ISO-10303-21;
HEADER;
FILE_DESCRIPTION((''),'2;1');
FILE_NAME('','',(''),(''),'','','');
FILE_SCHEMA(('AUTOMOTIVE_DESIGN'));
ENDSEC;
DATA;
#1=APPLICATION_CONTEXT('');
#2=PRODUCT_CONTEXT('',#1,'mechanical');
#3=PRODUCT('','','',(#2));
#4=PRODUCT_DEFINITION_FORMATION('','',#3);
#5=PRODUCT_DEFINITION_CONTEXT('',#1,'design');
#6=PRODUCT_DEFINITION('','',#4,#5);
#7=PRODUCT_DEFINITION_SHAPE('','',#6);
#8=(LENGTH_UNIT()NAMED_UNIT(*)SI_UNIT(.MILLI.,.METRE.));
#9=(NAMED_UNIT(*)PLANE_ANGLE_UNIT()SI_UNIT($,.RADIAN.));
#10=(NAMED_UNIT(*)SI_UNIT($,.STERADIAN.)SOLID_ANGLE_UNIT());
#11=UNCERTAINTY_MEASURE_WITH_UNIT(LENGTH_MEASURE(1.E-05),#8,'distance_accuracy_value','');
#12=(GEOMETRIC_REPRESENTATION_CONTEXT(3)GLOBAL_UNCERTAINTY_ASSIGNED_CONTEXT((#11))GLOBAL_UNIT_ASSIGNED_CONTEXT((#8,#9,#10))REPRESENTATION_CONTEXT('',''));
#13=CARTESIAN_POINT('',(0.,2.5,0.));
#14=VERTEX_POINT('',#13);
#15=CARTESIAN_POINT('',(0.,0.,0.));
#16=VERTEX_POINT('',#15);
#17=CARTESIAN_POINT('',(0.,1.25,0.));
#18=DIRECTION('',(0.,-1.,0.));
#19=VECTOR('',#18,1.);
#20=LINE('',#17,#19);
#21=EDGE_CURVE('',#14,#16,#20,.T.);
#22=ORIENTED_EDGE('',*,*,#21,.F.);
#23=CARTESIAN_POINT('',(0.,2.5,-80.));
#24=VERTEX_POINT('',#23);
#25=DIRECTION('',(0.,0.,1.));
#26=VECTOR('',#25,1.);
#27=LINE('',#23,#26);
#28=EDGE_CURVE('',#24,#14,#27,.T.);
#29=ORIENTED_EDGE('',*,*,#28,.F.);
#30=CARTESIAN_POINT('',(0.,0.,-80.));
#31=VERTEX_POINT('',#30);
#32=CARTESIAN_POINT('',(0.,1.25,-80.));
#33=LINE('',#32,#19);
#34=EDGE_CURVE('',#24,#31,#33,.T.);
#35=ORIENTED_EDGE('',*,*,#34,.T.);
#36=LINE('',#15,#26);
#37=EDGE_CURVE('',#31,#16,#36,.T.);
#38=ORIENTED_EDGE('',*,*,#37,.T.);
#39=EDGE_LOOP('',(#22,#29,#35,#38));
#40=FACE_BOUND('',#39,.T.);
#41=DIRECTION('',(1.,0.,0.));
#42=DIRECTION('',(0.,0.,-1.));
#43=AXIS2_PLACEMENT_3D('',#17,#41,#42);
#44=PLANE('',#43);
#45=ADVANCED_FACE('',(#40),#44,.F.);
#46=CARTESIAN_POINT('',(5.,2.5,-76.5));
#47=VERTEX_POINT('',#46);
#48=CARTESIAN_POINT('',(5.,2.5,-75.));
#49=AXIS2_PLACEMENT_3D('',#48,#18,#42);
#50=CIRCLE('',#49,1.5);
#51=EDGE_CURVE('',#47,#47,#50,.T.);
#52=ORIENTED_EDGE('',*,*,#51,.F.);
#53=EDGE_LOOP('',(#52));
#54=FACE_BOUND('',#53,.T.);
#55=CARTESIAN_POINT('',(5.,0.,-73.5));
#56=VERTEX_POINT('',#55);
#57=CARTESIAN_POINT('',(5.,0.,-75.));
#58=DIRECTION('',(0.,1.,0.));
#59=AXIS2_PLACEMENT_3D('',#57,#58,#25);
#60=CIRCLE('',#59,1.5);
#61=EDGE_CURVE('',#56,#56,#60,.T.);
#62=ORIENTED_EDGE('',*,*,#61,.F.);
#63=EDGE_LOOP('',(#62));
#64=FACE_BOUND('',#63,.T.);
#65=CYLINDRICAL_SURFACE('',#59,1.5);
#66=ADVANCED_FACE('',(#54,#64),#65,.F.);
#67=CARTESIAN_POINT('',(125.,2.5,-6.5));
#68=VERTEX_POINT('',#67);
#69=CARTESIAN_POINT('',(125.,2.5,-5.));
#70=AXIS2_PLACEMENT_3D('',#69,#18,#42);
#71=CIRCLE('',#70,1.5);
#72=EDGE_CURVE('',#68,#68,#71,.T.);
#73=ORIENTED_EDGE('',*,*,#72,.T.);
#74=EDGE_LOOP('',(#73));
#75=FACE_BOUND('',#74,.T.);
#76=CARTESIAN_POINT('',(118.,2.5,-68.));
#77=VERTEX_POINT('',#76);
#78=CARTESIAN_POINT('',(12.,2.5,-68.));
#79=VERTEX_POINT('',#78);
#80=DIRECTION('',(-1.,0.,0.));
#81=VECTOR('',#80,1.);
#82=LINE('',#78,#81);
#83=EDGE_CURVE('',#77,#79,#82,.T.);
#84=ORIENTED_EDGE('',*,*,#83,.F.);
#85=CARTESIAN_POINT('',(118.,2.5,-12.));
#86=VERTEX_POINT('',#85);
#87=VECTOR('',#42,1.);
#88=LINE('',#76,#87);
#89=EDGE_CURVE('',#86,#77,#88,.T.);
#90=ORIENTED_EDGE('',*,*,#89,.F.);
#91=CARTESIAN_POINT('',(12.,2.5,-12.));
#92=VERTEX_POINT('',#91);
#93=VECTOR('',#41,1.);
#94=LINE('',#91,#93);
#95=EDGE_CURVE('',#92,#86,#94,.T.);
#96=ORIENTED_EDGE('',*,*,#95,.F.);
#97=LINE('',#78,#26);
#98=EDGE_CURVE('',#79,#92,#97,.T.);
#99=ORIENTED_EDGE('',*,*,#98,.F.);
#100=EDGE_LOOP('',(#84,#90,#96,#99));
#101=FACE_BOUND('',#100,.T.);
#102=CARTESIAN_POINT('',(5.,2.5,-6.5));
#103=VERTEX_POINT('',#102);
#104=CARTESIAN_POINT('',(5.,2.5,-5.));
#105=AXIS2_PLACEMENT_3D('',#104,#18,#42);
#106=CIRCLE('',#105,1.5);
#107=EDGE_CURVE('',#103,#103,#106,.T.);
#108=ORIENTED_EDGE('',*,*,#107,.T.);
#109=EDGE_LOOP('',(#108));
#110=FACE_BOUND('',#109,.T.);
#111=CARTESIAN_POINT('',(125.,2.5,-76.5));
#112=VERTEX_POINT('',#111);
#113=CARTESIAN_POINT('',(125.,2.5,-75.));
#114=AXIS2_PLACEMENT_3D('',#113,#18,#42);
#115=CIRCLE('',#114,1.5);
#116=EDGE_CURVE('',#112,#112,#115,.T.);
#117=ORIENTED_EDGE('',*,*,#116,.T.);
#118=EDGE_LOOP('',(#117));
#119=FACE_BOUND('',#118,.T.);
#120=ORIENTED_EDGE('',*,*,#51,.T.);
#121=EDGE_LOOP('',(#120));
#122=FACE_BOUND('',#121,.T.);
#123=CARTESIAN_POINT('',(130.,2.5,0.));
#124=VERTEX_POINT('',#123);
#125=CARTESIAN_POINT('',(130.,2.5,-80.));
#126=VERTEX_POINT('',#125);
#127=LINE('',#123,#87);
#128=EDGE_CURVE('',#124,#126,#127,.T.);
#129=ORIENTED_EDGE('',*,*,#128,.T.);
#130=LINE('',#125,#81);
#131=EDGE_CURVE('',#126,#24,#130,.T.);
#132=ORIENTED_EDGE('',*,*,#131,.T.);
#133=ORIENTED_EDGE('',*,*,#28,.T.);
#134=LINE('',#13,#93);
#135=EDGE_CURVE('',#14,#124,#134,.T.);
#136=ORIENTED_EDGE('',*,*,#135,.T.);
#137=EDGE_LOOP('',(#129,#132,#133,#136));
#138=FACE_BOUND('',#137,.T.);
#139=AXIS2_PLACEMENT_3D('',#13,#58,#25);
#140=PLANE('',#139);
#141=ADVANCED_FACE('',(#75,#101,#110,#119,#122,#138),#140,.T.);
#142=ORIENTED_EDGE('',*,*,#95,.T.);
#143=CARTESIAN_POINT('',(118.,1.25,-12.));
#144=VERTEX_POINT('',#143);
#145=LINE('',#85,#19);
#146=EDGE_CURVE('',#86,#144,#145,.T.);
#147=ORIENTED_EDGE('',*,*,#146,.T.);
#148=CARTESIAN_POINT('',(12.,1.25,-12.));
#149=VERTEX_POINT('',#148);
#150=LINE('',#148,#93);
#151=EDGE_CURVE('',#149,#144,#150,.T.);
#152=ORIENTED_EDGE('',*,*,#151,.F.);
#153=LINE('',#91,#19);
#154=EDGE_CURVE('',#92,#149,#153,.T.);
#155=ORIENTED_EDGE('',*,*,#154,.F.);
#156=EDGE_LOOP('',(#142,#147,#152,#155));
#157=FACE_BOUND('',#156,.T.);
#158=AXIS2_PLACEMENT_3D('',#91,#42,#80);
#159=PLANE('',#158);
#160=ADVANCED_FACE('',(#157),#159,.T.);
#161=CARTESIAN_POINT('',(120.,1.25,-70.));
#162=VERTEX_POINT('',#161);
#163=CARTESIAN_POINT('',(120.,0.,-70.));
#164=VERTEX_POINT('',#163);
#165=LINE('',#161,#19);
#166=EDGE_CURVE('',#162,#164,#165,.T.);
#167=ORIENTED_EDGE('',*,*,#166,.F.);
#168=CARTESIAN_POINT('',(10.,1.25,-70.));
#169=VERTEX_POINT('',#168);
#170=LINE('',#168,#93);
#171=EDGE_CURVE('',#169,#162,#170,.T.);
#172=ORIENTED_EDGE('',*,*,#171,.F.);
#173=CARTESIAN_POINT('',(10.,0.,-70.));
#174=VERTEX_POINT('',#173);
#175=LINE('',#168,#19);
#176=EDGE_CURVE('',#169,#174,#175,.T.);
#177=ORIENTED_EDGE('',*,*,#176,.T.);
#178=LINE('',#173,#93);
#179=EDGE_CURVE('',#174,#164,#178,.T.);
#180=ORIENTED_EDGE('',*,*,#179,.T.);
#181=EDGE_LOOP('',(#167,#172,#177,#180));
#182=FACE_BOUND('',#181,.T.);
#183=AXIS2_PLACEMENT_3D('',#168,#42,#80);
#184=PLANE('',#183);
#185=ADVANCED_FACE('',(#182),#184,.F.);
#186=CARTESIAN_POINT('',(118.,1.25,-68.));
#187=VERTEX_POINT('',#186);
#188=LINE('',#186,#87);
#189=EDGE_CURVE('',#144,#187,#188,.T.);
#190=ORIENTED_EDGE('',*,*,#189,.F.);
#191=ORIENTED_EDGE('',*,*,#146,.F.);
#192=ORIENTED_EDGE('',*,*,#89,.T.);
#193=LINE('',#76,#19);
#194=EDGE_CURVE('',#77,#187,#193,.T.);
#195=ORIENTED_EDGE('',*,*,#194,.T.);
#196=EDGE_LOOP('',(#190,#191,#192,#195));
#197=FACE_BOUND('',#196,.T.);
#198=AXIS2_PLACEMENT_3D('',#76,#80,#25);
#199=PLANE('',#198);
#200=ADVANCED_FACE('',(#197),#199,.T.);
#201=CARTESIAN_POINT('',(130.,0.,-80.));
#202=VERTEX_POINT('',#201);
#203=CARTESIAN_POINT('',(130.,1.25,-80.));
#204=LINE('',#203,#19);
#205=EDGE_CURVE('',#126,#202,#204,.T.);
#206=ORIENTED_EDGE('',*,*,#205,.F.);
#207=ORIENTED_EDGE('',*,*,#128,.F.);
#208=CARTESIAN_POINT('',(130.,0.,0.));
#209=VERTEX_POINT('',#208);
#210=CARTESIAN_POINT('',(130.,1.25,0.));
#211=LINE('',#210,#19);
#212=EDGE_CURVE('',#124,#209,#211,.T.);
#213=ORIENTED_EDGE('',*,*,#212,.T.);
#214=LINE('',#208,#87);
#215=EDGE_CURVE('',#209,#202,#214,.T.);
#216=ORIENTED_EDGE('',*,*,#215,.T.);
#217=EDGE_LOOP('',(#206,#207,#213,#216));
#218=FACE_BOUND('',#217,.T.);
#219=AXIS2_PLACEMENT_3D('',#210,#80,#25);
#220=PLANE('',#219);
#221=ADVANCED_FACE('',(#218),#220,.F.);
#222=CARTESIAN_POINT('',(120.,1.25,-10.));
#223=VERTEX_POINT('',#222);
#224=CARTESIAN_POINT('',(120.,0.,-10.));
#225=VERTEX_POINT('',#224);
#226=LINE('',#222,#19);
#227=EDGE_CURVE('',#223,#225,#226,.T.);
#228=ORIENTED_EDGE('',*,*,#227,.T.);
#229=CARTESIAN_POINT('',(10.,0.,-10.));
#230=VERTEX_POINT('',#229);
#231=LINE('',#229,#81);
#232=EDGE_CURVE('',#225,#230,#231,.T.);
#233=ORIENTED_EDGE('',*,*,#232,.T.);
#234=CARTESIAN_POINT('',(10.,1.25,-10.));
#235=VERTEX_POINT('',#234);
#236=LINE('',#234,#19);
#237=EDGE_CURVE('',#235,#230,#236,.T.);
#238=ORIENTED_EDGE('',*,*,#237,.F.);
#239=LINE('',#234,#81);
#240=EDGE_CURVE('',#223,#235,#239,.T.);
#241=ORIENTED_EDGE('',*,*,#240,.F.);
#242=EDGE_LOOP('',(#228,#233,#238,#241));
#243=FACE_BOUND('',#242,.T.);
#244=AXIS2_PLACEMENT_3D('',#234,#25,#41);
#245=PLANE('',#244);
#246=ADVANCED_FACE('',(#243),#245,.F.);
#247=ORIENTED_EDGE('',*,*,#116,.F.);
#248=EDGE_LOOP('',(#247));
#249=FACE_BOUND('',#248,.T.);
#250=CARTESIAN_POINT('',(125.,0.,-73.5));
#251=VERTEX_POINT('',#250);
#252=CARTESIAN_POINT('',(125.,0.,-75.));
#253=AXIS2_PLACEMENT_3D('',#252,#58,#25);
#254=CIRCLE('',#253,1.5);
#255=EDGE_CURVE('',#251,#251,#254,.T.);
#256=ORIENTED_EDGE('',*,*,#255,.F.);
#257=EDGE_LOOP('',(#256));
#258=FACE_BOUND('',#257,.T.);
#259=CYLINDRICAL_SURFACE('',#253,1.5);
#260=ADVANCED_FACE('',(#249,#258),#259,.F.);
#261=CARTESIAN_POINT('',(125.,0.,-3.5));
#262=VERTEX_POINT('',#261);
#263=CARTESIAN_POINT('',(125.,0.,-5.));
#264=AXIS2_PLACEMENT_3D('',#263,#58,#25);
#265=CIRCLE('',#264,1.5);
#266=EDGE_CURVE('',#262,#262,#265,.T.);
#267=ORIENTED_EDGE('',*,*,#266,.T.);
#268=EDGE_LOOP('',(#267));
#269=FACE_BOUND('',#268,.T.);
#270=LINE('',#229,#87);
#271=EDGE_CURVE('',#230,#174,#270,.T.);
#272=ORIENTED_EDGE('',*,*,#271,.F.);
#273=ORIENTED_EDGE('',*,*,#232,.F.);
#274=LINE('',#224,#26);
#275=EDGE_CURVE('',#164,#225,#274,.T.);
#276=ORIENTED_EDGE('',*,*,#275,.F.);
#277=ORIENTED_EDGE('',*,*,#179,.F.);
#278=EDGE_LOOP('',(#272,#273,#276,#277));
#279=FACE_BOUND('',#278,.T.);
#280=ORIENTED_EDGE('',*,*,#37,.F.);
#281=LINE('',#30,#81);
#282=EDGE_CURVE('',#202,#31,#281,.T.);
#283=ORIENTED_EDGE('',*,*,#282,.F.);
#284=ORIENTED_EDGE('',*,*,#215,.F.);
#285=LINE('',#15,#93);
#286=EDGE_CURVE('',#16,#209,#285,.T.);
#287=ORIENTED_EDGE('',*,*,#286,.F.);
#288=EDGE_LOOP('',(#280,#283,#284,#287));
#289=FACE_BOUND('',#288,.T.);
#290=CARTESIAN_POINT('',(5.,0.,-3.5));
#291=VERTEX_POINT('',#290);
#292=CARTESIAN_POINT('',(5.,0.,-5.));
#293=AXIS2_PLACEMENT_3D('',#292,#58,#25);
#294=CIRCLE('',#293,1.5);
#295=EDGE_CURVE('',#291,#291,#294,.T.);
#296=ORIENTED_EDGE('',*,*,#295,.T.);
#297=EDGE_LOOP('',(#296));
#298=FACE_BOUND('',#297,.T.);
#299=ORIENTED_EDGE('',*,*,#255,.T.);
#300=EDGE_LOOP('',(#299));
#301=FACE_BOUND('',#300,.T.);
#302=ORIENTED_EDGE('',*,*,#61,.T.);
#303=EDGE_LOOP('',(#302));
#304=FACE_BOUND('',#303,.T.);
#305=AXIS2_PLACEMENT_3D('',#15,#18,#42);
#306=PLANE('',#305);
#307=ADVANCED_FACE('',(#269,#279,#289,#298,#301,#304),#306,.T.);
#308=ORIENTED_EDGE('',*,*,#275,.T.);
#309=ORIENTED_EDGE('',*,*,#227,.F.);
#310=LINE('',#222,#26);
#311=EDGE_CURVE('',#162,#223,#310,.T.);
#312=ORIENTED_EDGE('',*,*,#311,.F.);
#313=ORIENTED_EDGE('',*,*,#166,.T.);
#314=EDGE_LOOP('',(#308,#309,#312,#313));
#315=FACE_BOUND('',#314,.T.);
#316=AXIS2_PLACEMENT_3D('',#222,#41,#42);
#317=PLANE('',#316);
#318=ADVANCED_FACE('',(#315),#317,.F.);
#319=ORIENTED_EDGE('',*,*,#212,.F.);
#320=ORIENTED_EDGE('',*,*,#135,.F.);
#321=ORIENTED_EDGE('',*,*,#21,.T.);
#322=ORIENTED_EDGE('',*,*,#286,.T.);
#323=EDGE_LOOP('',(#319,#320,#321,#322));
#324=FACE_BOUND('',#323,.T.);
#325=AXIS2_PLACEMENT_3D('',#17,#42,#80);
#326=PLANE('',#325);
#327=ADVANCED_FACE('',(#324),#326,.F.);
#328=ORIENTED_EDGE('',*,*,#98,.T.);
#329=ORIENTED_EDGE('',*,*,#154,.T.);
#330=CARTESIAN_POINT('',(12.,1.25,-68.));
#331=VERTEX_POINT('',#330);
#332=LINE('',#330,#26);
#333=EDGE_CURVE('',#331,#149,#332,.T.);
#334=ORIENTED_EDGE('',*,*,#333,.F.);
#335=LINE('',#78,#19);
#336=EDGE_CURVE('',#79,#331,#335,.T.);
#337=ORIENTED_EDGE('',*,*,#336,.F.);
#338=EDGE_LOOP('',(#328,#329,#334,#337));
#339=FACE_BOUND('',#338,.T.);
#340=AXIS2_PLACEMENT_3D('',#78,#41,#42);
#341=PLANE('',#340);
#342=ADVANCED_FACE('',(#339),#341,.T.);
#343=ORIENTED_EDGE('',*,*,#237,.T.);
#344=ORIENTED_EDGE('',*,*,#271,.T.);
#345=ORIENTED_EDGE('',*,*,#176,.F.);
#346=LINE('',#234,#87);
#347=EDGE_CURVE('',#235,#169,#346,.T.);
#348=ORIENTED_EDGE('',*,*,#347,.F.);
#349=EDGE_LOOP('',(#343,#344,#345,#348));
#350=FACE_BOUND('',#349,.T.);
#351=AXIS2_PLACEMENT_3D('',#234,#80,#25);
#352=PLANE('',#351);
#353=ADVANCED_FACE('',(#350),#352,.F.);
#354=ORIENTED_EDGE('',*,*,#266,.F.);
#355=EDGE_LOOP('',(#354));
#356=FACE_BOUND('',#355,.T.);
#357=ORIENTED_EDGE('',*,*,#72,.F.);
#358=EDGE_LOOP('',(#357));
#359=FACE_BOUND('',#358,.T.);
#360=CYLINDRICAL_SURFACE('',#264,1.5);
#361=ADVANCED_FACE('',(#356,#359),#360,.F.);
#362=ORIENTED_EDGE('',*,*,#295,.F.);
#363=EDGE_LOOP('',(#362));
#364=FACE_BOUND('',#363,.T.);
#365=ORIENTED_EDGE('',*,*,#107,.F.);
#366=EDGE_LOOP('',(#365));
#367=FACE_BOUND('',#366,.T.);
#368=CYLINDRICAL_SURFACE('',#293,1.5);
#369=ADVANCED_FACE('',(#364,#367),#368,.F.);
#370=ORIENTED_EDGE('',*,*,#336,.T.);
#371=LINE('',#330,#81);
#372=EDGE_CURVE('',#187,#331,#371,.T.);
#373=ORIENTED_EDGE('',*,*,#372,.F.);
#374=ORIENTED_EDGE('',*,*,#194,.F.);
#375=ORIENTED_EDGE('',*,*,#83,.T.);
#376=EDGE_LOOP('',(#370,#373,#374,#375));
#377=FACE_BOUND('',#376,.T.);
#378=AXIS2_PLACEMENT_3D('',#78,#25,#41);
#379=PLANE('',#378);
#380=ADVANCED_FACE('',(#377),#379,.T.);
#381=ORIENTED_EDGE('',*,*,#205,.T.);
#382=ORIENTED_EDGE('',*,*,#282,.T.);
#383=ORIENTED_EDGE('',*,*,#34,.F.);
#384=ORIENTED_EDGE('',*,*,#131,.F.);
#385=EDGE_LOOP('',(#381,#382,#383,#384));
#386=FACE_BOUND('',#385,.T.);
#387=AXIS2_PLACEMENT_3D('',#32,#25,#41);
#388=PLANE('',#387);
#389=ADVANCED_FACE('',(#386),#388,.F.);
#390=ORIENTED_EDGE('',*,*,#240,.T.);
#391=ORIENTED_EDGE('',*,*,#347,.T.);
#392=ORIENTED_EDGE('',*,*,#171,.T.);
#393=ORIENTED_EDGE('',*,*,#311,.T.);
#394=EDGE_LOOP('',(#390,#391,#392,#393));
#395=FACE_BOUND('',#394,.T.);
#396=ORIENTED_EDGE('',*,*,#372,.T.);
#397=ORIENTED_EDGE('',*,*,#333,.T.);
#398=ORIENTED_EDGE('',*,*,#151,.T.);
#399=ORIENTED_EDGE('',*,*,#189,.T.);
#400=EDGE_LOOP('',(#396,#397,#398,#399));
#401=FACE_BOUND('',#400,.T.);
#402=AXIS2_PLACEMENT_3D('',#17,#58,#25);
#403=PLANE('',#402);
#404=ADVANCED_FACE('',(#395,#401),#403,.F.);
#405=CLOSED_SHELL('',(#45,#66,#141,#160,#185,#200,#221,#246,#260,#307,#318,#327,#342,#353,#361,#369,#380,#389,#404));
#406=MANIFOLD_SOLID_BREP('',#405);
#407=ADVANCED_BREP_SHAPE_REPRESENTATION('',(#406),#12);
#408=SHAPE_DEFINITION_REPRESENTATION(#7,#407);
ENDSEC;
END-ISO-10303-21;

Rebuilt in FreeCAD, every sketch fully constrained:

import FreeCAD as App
import Part
import Sketcher
from FreeCAD import Vector

doc = App.newDocument("Part")
body = doc.addObject("PartDesign::Body", "Body")

sketch1 = body.newObject("Sketcher::SketchObject", "Sketch")
sketch1.AttachmentSupport = (doc.getObject("XZ_Plane"), [""])
sketch1.MapMode = "FlatFace"
sketch1.addGeometry([
    Part.LineSegment(Vector(0, -80, 0), Vector(0, 0, 0)),
    Part.LineSegment(Vector(0, 0, 0), Vector(130, 0, 0)),
    Part.LineSegment(Vector(130, 0, 0), Vector(130, -80, 0)),
    Part.LineSegment(Vector(130, -80, 0), Vector(0, -80, 0)),
], False)
sketch1.addConstraint([
    Sketcher.Constraint("Coincident", 0, 2, 1, 1),
    Sketcher.Constraint("Coincident", 1, 2, 2, 1),
    Sketcher.Constraint("Coincident", 2, 2, 3, 1),
    Sketcher.Constraint("Coincident", 3, 2, 0, 1),
    Sketcher.Constraint("Vertical", 0),
    Sketcher.Constraint("Horizontal", 1),
    Sketcher.Constraint("Vertical", 2),
    Sketcher.Constraint("Horizontal", 3),
    Sketcher.Constraint("Coincident", 0, 2, -1, 1),
    Sketcher.Constraint("DistanceX", 1, 1, 1, 2, 130.0),
    Sketcher.Constraint("DistanceY", 0, 1, 0, 2, 80.0),
])
pad1 = body.newObject("PartDesign::Pad", "Pad")
pad1.Profile = sketch1
pad1.Length = 1.25
pad1.Reversed = True

sketch2 = body.newObject("Sketcher::SketchObject", "Sketch001")
sketch2.AttachmentSupport = (doc.getObject("XZ_Plane"), [""])
sketch2.MapMode = "FlatFace"
sketch2.addGeometry([
    Part.LineSegment(Vector(10, -10, 0), Vector(10, -70, 0)),
    Part.LineSegment(Vector(10, -70, 0), Vector(120, -70, 0)),
    Part.LineSegment(Vector(120, -70, 0), Vector(120, -10, 0)),
    Part.LineSegment(Vector(120, -10, 0), Vector(10, -10, 0)),
], False)
sketch2.addConstraint([
    Sketcher.Constraint("Coincident", 0, 2, 1, 1),
    Sketcher.Constraint("Coincident", 1, 2, 2, 1),
    Sketcher.Constraint("Coincident", 2, 2, 3, 1),
    Sketcher.Constraint("Coincident", 3, 2, 0, 1),
    Sketcher.Constraint("Vertical", 0),
    Sketcher.Constraint("Horizontal", 1),
    Sketcher.Constraint("Vertical", 2),
    Sketcher.Constraint("Horizontal", 3),
    Sketcher.Constraint("DistanceX", 1, 1, 1, 2, 110.0),
    Sketcher.Constraint("DistanceY", 0, 2, 0, 1, 60.0),
    Sketcher.Constraint("DistanceX", -1, 1, 0, 2, 10.0),
    Sketcher.Constraint("DistanceY", 0, 2, -1, 1, 70.0),
])
pocket1 = body.newObject("PartDesign::Pocket", "Pocket")
pocket1.Profile = sketch2
pocket1.Type = "ThroughAll"

sketch3 = body.newObject("Sketcher::SketchObject", "Sketch002")
sketch3.AttachmentSupport = (doc.getObject("XZ_Plane"), [""])
sketch3.MapMode = "FlatFace"
sketch3.AttachmentOffset = App.Placement(Vector(0, 0, -1.25), App.Rotation())
sketch3.addGeometry([
    Part.Circle(Vector(5, -75, 0), Vector(0, 0, 1), 1.5),
    Part.Circle(Vector(125, -75, 0), Vector(0, 0, 1), 1.5),
    Part.Circle(Vector(125, -5, 0), Vector(0, 0, 1), 1.5),
    Part.Circle(Vector(5, -5, 0), Vector(0, 0, 1), 1.5),
], False)
sketch3.addConstraint([
    Sketcher.Constraint("Equal", 0, 1),
    Sketcher.Constraint("Equal", 1, 2),
    Sketcher.Constraint("Equal", 2, 3),
    Sketcher.Constraint("Horizontal", 0, 3, 1, 3),
    Sketcher.Constraint("Horizontal", 2, 3, 3, 3),
    Sketcher.Constraint("Vertical", 1, 3, 2, 3),
    Sketcher.Constraint("Vertical", 0, 3, 3, 3),
    Sketcher.Constraint("Diameter", 0, 3.0),
    Sketcher.Constraint("DistanceX", -1, 1, 0, 3, 5.0),
    Sketcher.Constraint("DistanceY", 0, 3, -1, 1, 75.0),
    Sketcher.Constraint("DistanceX", -1, 1, 1, 3, 125.0),
    Sketcher.Constraint("DistanceY", 2, 3, -1, 1, 5.0),
])
pocket2 = body.newObject("PartDesign::Pocket", "Pocket001")
pocket2.Profile = sketch3
pocket2.Type = "ThroughAll"
pocket2.Reversed = True

sketch4 = body.newObject("Sketcher::SketchObject", "Sketch003")
sketch4.AttachmentSupport = (doc.getObject("XZ_Plane"), [""])
sketch4.MapMode = "FlatFace"
sketch4.AttachmentOffset = App.Placement(Vector(0, 0, -1.25), App.Rotation())
sketch4.addGeometry([
    Part.LineSegment(Vector(0, -80, 0), Vector(0, 0, 0)),
    Part.LineSegment(Vector(0, 0, 0), Vector(130, 0, 0)),
    Part.LineSegment(Vector(130, 0, 0), Vector(130, -80, 0)),
    Part.LineSegment(Vector(130, -80, 0), Vector(0, -80, 0)),
    Part.LineSegment(Vector(118, -12, 0), Vector(12, -12, 0)),
    Part.LineSegment(Vector(12, -12, 0), Vector(12, -68, 0)),
    Part.LineSegment(Vector(12, -68, 0), Vector(118, -68, 0)),
    Part.LineSegment(Vector(118, -68, 0), Vector(118, -12, 0)),
], False)
sketch4.addConstraint([
    Sketcher.Constraint("Coincident", 0, 2, 1, 1),
    Sketcher.Constraint("Coincident", 1, 2, 2, 1),
    Sketcher.Constraint("Coincident", 2, 2, 3, 1),
    Sketcher.Constraint("Coincident", 3, 2, 0, 1),
    Sketcher.Constraint("Coincident", 4, 2, 5, 1),
    Sketcher.Constraint("Coincident", 5, 2, 6, 1),
    Sketcher.Constraint("Coincident", 6, 2, 7, 1),
    Sketcher.Constraint("Coincident", 7, 2, 4, 1),
    Sketcher.Constraint("Vertical", 0),
    Sketcher.Constraint("Horizontal", 1),
    Sketcher.Constraint("Vertical", 2),
    Sketcher.Constraint("Horizontal", 3),
    Sketcher.Constraint("Horizontal", 4),
    Sketcher.Constraint("Vertical", 5),
    Sketcher.Constraint("Horizontal", 6),
    Sketcher.Constraint("Vertical", 7),
    Sketcher.Constraint("Coincident", 0, 2, -1, 1),
    Sketcher.Constraint("DistanceX", 1, 1, 1, 2, 130.0),
    Sketcher.Constraint("DistanceX", 4, 2, 4, 1, 106.0),
    Sketcher.Constraint("DistanceY", 0, 1, 0, 2, 80.0),
    Sketcher.Constraint("DistanceY", 5, 2, 5, 1, 56.0),
    Sketcher.Constraint("DistanceX", -1, 1, 4, 2, 12.0),
    Sketcher.Constraint("DistanceY", 4, 2, -1, 1, 12.0),
])
pad2 = body.newObject("PartDesign::Pad", "Pad001")
pad2.Profile = sketch4
pad2.Length = 1.25
pad2.Reversed = True

sketch5 = body.newObject("Sketcher::SketchObject", "Sketch004")
sketch5.AttachmentSupport = (doc.getObject("XZ_Plane"), [""])
sketch5.MapMode = "FlatFace"
sketch5.AttachmentOffset = App.Placement(Vector(0, 0, -1.25), App.Rotation())
sketch5.addGeometry([
    Part.Circle(Vector(5, -75, 0), Vector(0, 0, 1), 1.5),
    Part.Circle(Vector(5, -5, 0), Vector(0, 0, 1), 1.5),
    Part.Circle(Vector(125, -5, 0), Vector(0, 0, 1), 1.5),
    Part.Circle(Vector(125, -75, 0), Vector(0, 0, 1), 1.5),
], False)
sketch5.addConstraint([
    Sketcher.Constraint("Equal", 0, 1),
    Sketcher.Constraint("Equal", 1, 2),
    Sketcher.Constraint("Equal", 2, 3),
    Sketcher.Constraint("Horizontal", 1, 3, 2, 3),
    Sketcher.Constraint("Horizontal", 0, 3, 3, 3),
    Sketcher.Constraint("Vertical", 0, 3, 1, 3),
    Sketcher.Constraint("Vertical", 2, 3, 3, 3),
    Sketcher.Constraint("Diameter", 0, 3.0),
    Sketcher.Constraint("DistanceX", -1, 1, 0, 3, 5.0),
    Sketcher.Constraint("DistanceY", 0, 3, -1, 1, 75.0),
    Sketcher.Constraint("DistanceY", 1, 3, -1, 1, 5.0),
    Sketcher.Constraint("DistanceX", -1, 1, 2, 3, 125.0),
])
pocket3 = body.newObject("PartDesign::Pocket", "Pocket002")
pocket3.Profile = sketch5
pocket3.Type = "ThroughAll"

doc.recompute()
